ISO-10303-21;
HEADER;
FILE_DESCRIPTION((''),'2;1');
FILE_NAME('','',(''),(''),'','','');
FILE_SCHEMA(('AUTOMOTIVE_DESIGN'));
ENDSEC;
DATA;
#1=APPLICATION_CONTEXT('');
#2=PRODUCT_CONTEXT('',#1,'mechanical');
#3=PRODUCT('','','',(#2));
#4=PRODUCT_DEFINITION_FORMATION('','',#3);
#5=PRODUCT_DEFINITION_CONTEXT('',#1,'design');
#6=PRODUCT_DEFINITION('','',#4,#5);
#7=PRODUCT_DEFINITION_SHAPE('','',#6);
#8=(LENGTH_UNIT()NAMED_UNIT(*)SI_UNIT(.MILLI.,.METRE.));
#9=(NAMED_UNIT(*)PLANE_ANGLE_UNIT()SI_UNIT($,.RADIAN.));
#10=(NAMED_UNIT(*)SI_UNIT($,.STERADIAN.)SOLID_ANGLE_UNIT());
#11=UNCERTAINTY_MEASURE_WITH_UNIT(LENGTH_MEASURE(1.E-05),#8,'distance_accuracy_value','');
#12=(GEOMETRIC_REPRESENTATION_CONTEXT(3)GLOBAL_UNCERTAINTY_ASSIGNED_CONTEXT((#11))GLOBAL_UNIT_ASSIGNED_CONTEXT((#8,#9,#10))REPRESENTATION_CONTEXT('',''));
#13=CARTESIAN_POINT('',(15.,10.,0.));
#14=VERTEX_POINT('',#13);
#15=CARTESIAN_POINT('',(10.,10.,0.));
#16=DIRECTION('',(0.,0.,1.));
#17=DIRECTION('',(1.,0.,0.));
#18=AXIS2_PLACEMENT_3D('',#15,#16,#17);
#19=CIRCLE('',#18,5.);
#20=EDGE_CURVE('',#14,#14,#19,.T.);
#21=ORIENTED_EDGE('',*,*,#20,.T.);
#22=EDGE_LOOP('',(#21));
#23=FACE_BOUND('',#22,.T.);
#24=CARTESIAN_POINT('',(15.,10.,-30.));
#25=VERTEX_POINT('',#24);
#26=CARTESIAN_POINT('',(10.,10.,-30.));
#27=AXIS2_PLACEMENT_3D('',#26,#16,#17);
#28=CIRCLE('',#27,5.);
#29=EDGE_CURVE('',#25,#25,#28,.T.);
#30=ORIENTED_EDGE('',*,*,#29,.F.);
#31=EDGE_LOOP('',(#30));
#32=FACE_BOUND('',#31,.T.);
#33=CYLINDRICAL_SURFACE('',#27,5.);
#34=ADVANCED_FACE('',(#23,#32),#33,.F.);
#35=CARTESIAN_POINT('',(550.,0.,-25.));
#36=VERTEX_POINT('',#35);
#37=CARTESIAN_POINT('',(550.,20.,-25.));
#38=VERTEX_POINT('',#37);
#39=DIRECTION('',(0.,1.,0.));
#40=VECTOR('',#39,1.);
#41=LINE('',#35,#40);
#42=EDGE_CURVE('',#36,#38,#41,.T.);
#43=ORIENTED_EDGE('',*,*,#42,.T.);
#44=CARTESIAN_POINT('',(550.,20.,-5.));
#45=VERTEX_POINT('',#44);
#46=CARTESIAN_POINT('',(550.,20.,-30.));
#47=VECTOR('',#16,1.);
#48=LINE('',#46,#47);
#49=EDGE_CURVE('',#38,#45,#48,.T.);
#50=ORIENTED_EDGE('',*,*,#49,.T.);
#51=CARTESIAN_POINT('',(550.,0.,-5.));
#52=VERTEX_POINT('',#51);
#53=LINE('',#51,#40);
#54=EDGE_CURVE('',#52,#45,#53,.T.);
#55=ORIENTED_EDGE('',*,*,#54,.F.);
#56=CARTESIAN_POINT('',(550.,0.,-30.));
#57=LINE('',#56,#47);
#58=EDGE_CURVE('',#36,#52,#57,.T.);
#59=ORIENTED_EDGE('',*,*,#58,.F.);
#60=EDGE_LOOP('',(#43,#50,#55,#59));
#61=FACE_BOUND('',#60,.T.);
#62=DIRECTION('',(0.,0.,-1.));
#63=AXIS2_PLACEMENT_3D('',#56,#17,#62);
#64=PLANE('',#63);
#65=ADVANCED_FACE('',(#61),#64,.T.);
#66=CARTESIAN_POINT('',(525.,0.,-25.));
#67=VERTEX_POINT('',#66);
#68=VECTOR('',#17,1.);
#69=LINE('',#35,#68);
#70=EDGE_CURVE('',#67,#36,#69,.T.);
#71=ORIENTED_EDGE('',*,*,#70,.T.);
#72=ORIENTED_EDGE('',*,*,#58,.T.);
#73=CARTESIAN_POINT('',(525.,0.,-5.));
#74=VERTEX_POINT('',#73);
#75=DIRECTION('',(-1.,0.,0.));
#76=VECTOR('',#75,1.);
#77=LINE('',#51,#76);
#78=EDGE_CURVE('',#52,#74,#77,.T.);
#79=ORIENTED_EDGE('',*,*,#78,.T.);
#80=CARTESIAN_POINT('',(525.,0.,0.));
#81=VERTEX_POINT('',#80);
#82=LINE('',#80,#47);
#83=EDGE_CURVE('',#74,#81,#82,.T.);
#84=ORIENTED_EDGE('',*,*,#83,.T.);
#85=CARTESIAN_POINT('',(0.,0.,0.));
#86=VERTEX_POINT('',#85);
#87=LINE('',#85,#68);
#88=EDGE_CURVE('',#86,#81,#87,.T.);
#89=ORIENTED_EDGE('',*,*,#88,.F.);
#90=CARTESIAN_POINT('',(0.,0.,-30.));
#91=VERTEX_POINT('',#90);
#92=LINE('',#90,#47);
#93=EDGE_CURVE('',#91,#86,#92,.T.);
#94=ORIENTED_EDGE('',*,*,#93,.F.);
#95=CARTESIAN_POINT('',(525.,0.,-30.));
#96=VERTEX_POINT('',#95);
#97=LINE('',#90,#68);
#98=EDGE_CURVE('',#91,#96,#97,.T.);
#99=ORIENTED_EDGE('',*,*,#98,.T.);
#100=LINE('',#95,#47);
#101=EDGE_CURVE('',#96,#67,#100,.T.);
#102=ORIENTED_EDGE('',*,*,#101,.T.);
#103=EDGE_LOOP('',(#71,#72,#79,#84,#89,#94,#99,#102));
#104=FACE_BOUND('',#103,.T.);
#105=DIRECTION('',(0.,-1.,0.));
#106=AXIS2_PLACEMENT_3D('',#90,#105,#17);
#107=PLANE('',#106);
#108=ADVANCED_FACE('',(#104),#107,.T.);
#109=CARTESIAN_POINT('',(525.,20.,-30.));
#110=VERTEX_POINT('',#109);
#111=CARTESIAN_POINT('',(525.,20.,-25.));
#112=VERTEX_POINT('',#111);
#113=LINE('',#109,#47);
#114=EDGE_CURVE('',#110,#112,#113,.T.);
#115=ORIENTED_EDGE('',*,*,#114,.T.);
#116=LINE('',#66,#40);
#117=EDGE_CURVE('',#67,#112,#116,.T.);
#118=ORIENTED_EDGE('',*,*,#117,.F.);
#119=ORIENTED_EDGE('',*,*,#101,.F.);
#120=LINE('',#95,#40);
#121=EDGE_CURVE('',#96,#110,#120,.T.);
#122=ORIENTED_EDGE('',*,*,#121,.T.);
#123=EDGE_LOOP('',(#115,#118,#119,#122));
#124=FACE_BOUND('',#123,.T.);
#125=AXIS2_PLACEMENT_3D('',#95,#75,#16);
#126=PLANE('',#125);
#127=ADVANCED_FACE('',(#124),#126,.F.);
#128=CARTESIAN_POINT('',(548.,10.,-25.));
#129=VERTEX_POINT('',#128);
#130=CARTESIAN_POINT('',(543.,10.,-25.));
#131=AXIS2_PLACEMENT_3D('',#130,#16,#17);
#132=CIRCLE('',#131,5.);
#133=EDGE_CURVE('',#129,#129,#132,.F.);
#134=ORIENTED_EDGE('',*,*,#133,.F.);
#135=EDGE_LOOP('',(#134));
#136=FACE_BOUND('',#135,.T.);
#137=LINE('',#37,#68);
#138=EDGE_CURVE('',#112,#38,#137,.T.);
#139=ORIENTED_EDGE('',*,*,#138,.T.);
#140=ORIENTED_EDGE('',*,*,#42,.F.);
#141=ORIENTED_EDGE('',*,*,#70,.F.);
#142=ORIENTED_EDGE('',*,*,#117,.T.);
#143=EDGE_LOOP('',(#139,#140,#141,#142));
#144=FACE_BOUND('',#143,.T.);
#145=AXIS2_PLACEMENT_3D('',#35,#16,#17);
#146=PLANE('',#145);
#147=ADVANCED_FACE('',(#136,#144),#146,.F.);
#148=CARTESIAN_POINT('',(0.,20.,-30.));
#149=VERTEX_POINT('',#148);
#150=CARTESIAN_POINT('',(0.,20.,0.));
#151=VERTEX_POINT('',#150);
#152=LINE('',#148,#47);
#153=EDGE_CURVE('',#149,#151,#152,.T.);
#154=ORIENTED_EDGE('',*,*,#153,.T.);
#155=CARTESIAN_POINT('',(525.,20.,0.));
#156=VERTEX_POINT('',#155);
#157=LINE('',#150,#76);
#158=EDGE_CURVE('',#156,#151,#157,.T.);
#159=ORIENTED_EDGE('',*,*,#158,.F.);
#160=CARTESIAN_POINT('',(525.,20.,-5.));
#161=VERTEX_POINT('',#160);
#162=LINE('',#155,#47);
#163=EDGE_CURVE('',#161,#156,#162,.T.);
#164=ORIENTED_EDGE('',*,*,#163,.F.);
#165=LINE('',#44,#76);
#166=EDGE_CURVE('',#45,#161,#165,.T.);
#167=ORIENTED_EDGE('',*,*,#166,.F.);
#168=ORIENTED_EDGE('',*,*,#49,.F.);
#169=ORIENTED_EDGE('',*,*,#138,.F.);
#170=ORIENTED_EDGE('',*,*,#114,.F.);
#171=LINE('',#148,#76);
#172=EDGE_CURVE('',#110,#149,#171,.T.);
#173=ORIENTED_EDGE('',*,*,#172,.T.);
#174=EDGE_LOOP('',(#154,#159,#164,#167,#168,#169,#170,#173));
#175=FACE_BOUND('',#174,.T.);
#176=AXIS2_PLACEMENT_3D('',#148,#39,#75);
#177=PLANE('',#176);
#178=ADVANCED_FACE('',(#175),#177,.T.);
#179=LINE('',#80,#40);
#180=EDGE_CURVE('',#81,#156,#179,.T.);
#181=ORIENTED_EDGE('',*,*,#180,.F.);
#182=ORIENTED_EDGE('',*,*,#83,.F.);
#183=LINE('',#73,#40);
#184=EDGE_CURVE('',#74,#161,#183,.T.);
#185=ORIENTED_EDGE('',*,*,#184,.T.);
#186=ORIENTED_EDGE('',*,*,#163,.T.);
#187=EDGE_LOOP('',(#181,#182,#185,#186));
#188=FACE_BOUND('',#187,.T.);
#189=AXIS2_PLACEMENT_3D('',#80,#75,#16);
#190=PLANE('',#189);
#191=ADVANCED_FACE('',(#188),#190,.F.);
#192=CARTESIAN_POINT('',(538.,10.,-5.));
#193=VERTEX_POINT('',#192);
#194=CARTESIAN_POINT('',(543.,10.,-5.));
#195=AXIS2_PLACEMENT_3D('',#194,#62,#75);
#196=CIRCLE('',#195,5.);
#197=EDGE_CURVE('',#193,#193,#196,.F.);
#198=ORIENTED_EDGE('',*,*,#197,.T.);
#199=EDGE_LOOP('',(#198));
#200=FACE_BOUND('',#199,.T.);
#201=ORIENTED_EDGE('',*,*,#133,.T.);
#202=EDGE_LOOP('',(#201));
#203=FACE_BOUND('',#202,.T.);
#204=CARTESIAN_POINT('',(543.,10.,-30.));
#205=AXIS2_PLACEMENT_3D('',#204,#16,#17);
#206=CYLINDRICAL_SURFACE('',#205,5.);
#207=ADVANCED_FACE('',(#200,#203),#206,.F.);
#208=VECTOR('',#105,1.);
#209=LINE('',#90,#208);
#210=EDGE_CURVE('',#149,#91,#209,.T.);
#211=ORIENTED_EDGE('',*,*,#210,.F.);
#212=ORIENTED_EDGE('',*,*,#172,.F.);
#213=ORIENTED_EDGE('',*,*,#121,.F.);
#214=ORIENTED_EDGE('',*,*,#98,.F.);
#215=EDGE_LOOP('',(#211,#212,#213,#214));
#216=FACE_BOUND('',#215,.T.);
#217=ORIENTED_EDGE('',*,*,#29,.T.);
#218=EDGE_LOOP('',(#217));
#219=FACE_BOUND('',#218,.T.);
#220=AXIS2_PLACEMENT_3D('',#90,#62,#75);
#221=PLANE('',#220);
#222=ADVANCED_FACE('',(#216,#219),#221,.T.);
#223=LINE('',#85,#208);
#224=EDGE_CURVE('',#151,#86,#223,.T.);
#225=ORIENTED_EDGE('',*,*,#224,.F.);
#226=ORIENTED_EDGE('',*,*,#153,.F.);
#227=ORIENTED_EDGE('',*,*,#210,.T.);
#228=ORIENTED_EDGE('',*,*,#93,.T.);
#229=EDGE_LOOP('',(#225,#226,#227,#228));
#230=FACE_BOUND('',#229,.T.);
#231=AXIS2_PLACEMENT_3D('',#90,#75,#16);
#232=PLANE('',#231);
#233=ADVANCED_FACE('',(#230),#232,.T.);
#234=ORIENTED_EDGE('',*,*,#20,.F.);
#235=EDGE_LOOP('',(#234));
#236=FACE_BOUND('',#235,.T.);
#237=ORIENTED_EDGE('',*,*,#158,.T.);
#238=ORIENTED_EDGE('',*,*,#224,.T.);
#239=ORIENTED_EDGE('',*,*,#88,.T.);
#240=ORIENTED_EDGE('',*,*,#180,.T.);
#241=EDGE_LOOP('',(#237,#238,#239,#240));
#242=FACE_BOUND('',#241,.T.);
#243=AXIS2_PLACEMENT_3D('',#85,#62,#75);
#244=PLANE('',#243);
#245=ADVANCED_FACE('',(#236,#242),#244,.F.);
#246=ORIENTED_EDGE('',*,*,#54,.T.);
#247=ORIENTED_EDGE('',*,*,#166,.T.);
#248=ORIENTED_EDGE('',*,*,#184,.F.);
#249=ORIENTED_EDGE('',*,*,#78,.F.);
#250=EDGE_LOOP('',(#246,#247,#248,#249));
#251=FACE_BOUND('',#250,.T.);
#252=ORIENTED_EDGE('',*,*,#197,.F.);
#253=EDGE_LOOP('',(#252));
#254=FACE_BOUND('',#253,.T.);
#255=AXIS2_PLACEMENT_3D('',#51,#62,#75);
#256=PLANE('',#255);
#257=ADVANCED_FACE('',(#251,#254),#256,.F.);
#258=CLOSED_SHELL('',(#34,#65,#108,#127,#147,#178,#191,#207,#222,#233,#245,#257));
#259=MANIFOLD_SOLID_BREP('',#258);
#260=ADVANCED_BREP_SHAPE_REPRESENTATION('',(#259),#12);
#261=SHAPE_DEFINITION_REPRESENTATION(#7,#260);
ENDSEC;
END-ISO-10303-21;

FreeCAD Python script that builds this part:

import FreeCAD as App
import Part
import Sketcher

V = App.Vector
Q = App.Units.Quantity

doc = App.newDocument("Part")
body = doc.addObject("PartDesign::Body", "Body")

# Sketch on XY plane
sketch1 = body.newObject("Sketcher::SketchObject", "Sketch")
sketch1.AttachmentSupport = (doc.getObject("XY_Plane"), [""])
sketch1.MapMode = "FlatFace"
sketch1.addGeometry([
    Part.LineSegment(V(0, 20, 0), V(0, 0, 0)),  # 0
    Part.LineSegment(V(0, 0, 0), V(550, 0, 0)),  # 1
    Part.LineSegment(V(550, 0, 0), V(550, 20, 0)),  # 2
    Part.LineSegment(V(550, 20, 0), V(0, 20, 0)),  # 3
    Part.Circle(V(10, 10, 0), V(0, 0, 1), 5),  # 4
    Part.Circle(V(543, 10, 0), V(0, 0, 1), 5),  # 5
], False)
sketch1.addConstraint([
    Sketcher.Constraint("Coincident", 0, 2, 1, 1),
    Sketcher.Constraint("Coincident", 1, 2, 2, 1),
    Sketcher.Constraint("Coincident", 2, 2, 3, 1),
    Sketcher.Constraint("Coincident", 3, 2, 0, 1),
    Sketcher.Constraint("Vertical", 0),
    Sketcher.Constraint("Horizontal", 1),
    Sketcher.Constraint("Vertical", 2),
    Sketcher.Constraint("Horizontal", 3),
    Sketcher.Constraint("Coincident", 0, 2, -1, 1),
    Sketcher.Constraint("Equal", 4, 5),
    Sketcher.Constraint("Horizontal", 4, 3, 5, 3),
    Sketcher.Constraint("Diameter", 4, Q("10 mm")),
    Sketcher.Constraint("DistanceX", 1, 1, 1, 2, Q("550 mm")),
    Sketcher.Constraint("DistanceY", 0, 2, 0, 1, Q("20 mm")),
    Sketcher.Constraint("DistanceX", -1, 1, 4, 3, Q("10 mm")),
    Sketcher.Constraint("DistanceY", -1, 1, 4, 3, Q("10 mm")),
    Sketcher.Constraint("DistanceX", -1, 1, 5, 3, Q("543 mm")),
])
pad1 = body.newObject("PartDesign::Pad", "Pad")
pad1.Profile = sketch1
pad1.Length = 30
pad1.Reversed = True

# Sketch on XZ plane
sketch2 = body.newObject("Sketcher::SketchObject", "Sketch001")
sketch2.AttachmentSupport = (doc.getObject("XZ_Plane"), [""])
sketch2.MapMode = "FlatFace"
sketch2.AttachmentOffset = App.Placement(V(0, 0, -20), App.Rotation())
sketch2.addGeometry([
    Part.LineSegment(V(525, -5, 0), V(525, 0, 0)),  # 0
    Part.LineSegment(V(525, 0, 0), V(550, 0, 0)),  # 1
    Part.LineSegment(V(550, 0, 0), V(550, -5, 0)),  # 2
    Part.LineSegment(V(550, -5, 0), V(525, -5, 0)),  # 3
    Part.LineSegment(V(525, -30, 0), V(525, -25, 0)),  # 4
    Part.LineSegment(V(525, -25, 0), V(550, -25, 0)),  # 5
    Part.LineSegment(V(550, -25, 0), V(550, -30, 0)),  # 6
    Part.LineSegment(V(550, -30, 0), V(525, -30, 0)),  # 7
], False)
sketch2.addConstraint([
    Sketcher.Constraint("Coincident", 0, 2, 1, 1),
    Sketcher.Constraint("Coincident", 1, 2, 2, 1),
    Sketcher.Constraint("Coincident", 2, 2, 3, 1),
    Sketcher.Constraint("Coincident", 3, 2, 0, 1),
    Sketcher.Constraint("Coincident", 4, 2, 5, 1),
    Sketcher.Constraint("Coincident", 5, 2, 6, 1),
    Sketcher.Constraint("Coincident", 6, 2, 7, 1),
    Sketcher.Constraint("Coincident", 7, 2, 4, 1),
    Sketcher.Constraint("Vertical", 0),
    Sketcher.Constraint("Horizontal", 1),
    Sketcher.Constraint("Vertical", 2),
    Sketcher.Constraint("Horizontal", 3),
    Sketcher.Constraint("Vertical", 4),
    Sketcher.Constraint("Horizontal", 5),
    Sketcher.Constraint("Vertical", 6),
    Sketcher.Constraint("Horizontal", 7),
    Sketcher.Constraint("PointOnObject", 0, 2, -1),
    Sketcher.Constraint("Vertical", 3, 2, 4, 2),
    Sketcher.Constraint("Vertical", 2, 2, 5, 2),
    Sketcher.Constraint("Equal", 2, 4),
    Sketcher.Constraint("DistanceX", 1, 1, 1, 2, Q("25 mm")),
    Sketcher.Constraint("DistanceY", 0, 1, 0, 2, Q("5 mm")),
    Sketcher.Constraint("DistanceX", -1, 1, 0, 2, Q("525 mm")),
    Sketcher.Constraint("DistanceY", 4, 2, -1, 1, Q("25 mm")),
])
pocket1 = body.newObject("PartDesign::Pocket", "Pocket")
pocket1.Profile = sketch2
pocket1.Type = "ThroughAll"
pocket1.Reversed = True

doc.recompute()
